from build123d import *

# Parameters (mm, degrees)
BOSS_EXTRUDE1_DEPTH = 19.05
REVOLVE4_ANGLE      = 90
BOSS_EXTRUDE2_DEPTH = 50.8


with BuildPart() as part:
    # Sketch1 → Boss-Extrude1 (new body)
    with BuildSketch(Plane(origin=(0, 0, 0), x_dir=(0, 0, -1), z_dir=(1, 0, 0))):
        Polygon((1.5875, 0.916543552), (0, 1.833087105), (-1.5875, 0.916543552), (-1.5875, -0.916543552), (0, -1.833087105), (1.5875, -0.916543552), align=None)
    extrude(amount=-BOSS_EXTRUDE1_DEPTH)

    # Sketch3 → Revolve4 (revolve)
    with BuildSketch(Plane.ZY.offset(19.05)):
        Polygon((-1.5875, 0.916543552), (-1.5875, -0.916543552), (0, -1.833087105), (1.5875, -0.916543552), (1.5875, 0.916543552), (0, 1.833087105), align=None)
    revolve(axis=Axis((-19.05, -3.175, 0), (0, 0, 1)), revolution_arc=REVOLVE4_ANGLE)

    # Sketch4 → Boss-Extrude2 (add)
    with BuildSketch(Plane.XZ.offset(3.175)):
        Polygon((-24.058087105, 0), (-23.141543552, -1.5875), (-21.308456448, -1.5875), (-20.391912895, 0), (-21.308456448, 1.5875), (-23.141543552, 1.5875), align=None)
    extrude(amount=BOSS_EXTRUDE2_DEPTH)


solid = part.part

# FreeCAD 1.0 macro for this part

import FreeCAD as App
import Part
import Sketcher
from FreeCAD import Vector
Q = App.Units.Quantity


def add_polygon(sketch, points):
    """Adds a closed chain of lines whose ends are joined by coincident constraints."""
    first, n = sketch.GeometryCount, len(points)
    for a, b in zip(points, points[1:] + points[:1]):
        sketch.addGeometry(Part.LineSegment(App.Vector(*a, 0), App.Vector(*b, 0)), False)
    for i in range(n):
        sketch.addConstraint(Sketcher.Constraint("Coincident", first + i, 2, first + (i + 1) % n, 1))

doc = App.newDocument("Part")
body = doc.addObject("PartDesign::Body", "Body")

sketch1 = doc.addObject("Sketcher::SketchObject", "Sketch")
body.addObject(sketch1)
sketch1.AttachmentSupport = (doc.YZ_Plane, [""])
sketch1.MapMode = "FlatFace"
add_polygon(sketch1, [(0.9, -1.6), (1.8, 0), (0.9, 1.6), (-0.9, 1.6), (-1.8, 0), (-0.9, -1.6)])
sketch1.addConstraint(Sketcher.Constraint("Horizontal", 2))
sketch1.addConstraint(Sketcher.Constraint("Horizontal", 5))
sketch1.addConstraint(Sketcher.Constraint("Symmetric", 0, 2, 3, 2, -1, 1))
sketch1.addConstraint(Sketcher.Constraint("Symmetric", 1, 2, 4, 2, -1, 1))
sketch1.addConstraint(Sketcher.Constraint("PointOnObject", 0, 2, -1))
sketch1.addConstraint(Sketcher.Constraint("Parallel", 0, 3))
sketch1.addConstraint(Sketcher.Constraint("Vertical", 2, 2, 4, 2))
sketch1.addConstraint(Sketcher.Constraint("Angle", 0, Q("60 deg")))
sketch1.addConstraint(Sketcher.Constraint("DistanceY", -1, 1, 1, 2, Q("0.0625 in")))
sketch1.addConstraint(Sketcher.Constraint("DistanceX", 2, 2, 2, 1, Q("1.833087 mm")))
pad1 = doc.addObject("PartDesign::Pad", "Pad")
body.addObject(pad1)
pad1.Profile = sketch1
pad1.Length = Q("0.75 in")
pad1.Reversed = True

sketch2 = doc.addObject("Sketcher::SketchObject", "Sketch001")
body.addObject(sketch2)
sketch2.AttachmentSupport = (doc.YZ_Plane, [""])
sketch2.MapMode = "FlatFace"
sketch2.AttachmentOffset = App.Placement(Vector(0, 0, -0.75 * 25.4), App.Rotation())
add_polygon(sketch2, [(0.9, -1.6), (-0.9, -1.6), (-1.8, 0), (-0.9, 1.6), (0.9, 1.6), (1.8, 0)])
sketch2.addGeometry(Part.LineSegment(Vector(-3.2, -1.6, 0), Vector(-3.2, 1.6, 0)), True)
sketch2.addConstraint(Sketcher.Constraint("Horizontal", 0))
sketch2.addConstraint(Sketcher.Constraint("Horizontal", 3))
sketch2.addConstraint(Sketcher.Constraint("Vertical", 6))
sketch2.addConstraint(Sketcher.Constraint("Symmetric", 0, 2, 3, 2, -1, 1))
sketch2.addConstraint(Sketcher.Constraint("Symmetric", 1, 2, 4, 2, -1, 1))
sketch2.addConstraint(Sketcher.Constraint("PointOnObject", 1, 2, -1))
sketch2.addConstraint(Sketcher.Constraint("Parallel", 2, 5))
sketch2.addConstraint(Sketcher.Constraint("Horizontal", 5, 2, 6, 1))
sketch2.addConstraint(Sketcher.Constraint("Horizontal", 3, 2, 6, 2))
sketch2.addConstraint(Sketcher.Constraint("Vertical", 0, 2, 2, 2))
sketch2.addConstraint(Sketcher.Constraint("Angle", 1, Q("120 deg")))
sketch2.addConstraint(Sketcher.Constraint("DistanceY", 6, 1, 6, 2, Q("0.125 in")))
sketch2.addConstraint(Sketcher.Constraint("DistanceX", 6, 1, -1, 1, Q("0.125 in")))
sketch2.addConstraint(Sketcher.Constraint("DistanceX", 0, 2, 0, 1, Q("1.833087 mm")))
revolution = doc.addObject("PartDesign::Revolution", "Revolution")
body.addObject(revolution)
revolution.Profile = sketch2
revolution.ReferenceAxis = (sketch2, ["Axis0"])
revolution.Angle = 90

sketch3 = doc.addObject("Sketcher::SketchObject", "Sketch002")
body.addObject(sketch3)
sketch3.AttachmentSupport = (doc.XZ_Plane, [""])
sketch3.MapMode = "FlatFace"
sketch3.AttachmentOffset = App.Placement(Vector(0, 0, 0.125 * 25.4), App.Rotation())
add_polygon(sketch3, [(-24.1, 0), (-23.1, -1.6), (-21.3, -1.6), (-20.4, 0), (-21.3, 1.6), (-23.1, 1.6)])
sketch3.addConstraint(Sketcher.Constraint("Horizontal", 1))
sketch3.addConstraint(Sketcher.Constraint("Horizontal", 4))
sketch3.addConstraint(Sketcher.Constraint("Symmetric", 1, 2, 3, 2, -1))
sketch3.addConstraint(Sketcher.Constraint("PointOnObject", 2, 2, -1))
sketch3.addConstraint(Sketcher.Constraint("PointOnObject", 5, 2, -1))
sketch3.addConstraint(Sketcher.Constraint("Parallel", 0, 3))
sketch3.addConstraint(Sketcher.Constraint("Parallel", 2, 5))
sketch3.addConstraint(Sketcher.Constraint("Angle", 0, Q("-60 deg")))
sketch3.addConstraint(Sketcher.Constraint("DistanceY", 0, 2, -1, 1, Q("0.0625 in")))
sketch3.addConstraint(Sketcher.Constraint("DistanceX", 1, 1, 1, 2, Q("1.833087 mm")))
sketch3.addConstraint(Sketcher.Constraint("DistanceX", 0, 2, -1, 1, Q("23.141544 mm")))
pad2 = doc.addObject("PartDesign::Pad", "Pad001")
body.addObject(pad2)
pad2.Profile = sketch3
pad2.Length = Q("2 in")

doc.recompute()
